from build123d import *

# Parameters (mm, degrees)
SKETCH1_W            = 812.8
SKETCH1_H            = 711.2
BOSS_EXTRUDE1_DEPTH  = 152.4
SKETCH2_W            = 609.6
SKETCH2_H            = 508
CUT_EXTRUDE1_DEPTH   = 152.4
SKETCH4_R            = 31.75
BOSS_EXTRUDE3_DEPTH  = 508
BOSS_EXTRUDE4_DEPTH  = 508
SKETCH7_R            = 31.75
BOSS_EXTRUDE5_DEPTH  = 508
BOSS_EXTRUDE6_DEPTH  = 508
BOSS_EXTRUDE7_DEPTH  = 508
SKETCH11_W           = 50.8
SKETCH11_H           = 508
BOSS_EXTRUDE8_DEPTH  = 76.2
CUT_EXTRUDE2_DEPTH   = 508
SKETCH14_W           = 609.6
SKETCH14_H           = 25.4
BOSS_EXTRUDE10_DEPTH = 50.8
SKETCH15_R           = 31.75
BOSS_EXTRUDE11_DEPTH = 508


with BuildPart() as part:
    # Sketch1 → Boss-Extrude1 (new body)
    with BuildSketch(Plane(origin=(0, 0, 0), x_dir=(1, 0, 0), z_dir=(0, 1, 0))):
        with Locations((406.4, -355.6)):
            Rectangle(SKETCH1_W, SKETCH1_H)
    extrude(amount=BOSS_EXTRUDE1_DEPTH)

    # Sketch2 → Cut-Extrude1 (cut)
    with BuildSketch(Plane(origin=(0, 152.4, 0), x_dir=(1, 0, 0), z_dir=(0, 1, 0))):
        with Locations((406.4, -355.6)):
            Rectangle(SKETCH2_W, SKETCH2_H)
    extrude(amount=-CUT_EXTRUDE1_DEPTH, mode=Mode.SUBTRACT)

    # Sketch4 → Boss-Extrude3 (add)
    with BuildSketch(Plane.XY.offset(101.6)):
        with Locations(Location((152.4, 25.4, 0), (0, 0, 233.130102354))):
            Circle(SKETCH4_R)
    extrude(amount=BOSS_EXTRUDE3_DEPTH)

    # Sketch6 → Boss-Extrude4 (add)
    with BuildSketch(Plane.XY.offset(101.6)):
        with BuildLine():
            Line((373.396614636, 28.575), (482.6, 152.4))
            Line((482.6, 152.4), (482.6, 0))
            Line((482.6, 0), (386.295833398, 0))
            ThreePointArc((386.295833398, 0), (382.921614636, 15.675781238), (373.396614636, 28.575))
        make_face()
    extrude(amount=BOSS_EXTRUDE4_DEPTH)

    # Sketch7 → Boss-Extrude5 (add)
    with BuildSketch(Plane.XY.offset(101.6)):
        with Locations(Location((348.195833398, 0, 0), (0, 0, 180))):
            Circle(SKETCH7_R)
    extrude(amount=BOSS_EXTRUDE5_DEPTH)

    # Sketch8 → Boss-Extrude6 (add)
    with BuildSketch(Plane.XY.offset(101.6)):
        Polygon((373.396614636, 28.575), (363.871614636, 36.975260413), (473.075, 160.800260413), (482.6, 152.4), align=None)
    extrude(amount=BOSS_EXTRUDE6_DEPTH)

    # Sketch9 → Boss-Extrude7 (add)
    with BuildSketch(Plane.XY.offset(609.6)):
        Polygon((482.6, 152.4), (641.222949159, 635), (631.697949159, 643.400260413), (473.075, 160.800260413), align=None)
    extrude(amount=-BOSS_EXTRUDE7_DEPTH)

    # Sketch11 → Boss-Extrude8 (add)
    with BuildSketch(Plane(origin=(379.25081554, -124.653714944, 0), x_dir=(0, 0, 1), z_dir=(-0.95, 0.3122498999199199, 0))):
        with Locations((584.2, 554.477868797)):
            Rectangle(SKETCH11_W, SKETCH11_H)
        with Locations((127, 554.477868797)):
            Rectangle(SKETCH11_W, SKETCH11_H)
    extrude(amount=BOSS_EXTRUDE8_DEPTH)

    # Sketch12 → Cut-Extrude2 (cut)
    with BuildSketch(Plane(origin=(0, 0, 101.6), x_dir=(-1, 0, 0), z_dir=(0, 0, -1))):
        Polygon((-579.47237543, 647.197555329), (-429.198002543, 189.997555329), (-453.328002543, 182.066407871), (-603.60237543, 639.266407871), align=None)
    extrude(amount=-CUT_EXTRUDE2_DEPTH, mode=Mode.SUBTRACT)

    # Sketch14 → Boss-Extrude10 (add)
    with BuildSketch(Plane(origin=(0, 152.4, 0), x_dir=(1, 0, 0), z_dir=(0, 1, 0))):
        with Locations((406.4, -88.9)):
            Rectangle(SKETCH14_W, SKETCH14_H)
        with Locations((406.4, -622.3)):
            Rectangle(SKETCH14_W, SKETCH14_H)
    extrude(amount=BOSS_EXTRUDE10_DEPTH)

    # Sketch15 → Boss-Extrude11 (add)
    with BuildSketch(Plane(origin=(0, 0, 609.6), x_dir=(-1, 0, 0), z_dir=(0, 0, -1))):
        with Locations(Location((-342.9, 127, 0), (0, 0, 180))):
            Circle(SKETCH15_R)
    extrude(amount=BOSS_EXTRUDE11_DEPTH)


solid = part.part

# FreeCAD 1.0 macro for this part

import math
import FreeCAD as App
import Part
import Sketcher

V = App.Vector
Q = App.Units.Quantity

doc = App.newDocument("Part")
params = doc.addObject("Spreadsheet::Sheet", "Params")
for row, (alias, value) in enumerate([
    ("sketch1_width", "32 in"),
    ("sketch1_height", "28 in"),
    ("pad1_length", "6 in"),
    ("sketch2_width", "24 in"),
    ("sketch2_height", "20 in"),
    ("pocket1_length", "6 in"),
    ("sketch3_diameter", "2.5 in"),
    ("pad2_length", "20 in"),
    ("sketch4_radius", "1.5 in"),
    ("sketch4_height", "6 in"),
    ("sketch4_length", "6.5 in"),
    ("pad3_length", "20 in"),
    ("sketch5_diameter", "2.5 in"),
    ("pad4_length", "20 in"),
    ("sketch6_length", "0.5 in"),
    ("sketch6_length2", "6.5 in"),
    ("pad5_length", "20 in"),
    ("sketch7_length", "20 in"),
    ("sketch7_length2", "0.5 in"),
    ("pad6_length", "20 in"),
    ("sketch8_width", "2 in"),
    ("sketch8_height", "20 in"),
    ("pad7_length", "3 in"),
    ("sketch9_length", "1 in"),
    ("pocket2_length", "20 in"),
    ("sketch10_width", "24 in"),
    ("sketch10_height", "1 in"),
    ("pad8_length", "2 in"),
    ("sketch11_diameter", "2.5 in"),
    ("pad9_length", "20 in"),
], start=1):
    params.set(f"A{row}", alias)
    params.set(f"B{row}", "=" + value)
    params.setAlias(f"B{row}", alias)

body = doc.addObject("PartDesign::Body", "Body")

# Sketch on XZ plane
sketch1 = body.newObject("Sketcher::SketchObject", "Sketch")
sketch1.AttachmentSupport = (doc.getObject("XZ_Plane"), [""])
sketch1.MapMode = "FlatFace"
sketch1.addGeometry(Part.LineSegment(V(0, 0, 0), V(0, 711, 0)), False)
sketch1.addGeometry(Part.LineSegment(V(0, 711, 0), V(813, 711, 0)), False)
sketch1.addGeometry(Part.LineSegment(V(813, 711, 0), V(813, 0, 0)), False)
sketch1.addGeometry(Part.LineSegment(V(813, 0, 0), V(0, 0, 0)), False)
sketch1.addConstraint(Sketcher.Constraint("Coincident", 0, 2, 1, 1))
sketch1.addConstraint(Sketcher.Constraint("Coincident", 1, 2, 2, 1))
sketch1.addConstraint(Sketcher.Constraint("Coincident", 2, 2, 3, 1))
sketch1.addConstraint(Sketcher.Constraint("Coincident", 3, 2, 0, 1))
sketch1.addConstraint(Sketcher.Constraint("Vertical", 0))
sketch1.addConstraint(Sketcher.Constraint("Horizontal", 1))
sketch1.addConstraint(Sketcher.Constraint("Vertical", 2))
sketch1.addConstraint(Sketcher.Constraint("Horizontal", 3))
sketch1.addConstraint(Sketcher.Constraint("Coincident", 3, 2, -1, 1))
sketch1.addConstraint(Sketcher.Constraint("DistanceX", 1, 1, 1, 2, Q("32 in")))
sketch1.addConstraint(Sketcher.Constraint("DistanceY", 0, 1, 0, 2, Q("28 in")))
sketch1.setExpression("Constraints[9]", "Params.sketch1_width")
sketch1.setExpression("Constraints[10]", "Params.sketch1_height")
pad1 = body.newObject("PartDesign::Pad", "Pad")
pad1.Profile = sketch1
pad1.setExpression("Length", "Params.pad1_length")
pad1.Reversed = True

# Sketch on XZ plane
sketch2 = body.newObject("Sketcher::SketchObject", "Sketch001")
sketch2.AttachmentSupport = (doc.getObject("XZ_Plane"), [""])
sketch2.MapMode = "FlatFace"
sketch2.AttachmentOffset = App.Placement(V(0, 0, -6 * 25.4), App.Rotation())
sketch2.addGeometry(Part.LineSegment(V(102, 102, 0), V(102, 610, 0)), False)
sketch2.addGeometry(Part.LineSegment(V(102, 610, 0), V(711, 610, 0)), False)
sketch2.addGeometry(Part.LineSegment(V(711, 610, 0), V(711, 102, 0)), False)
sketch2.addGeometry(Part.LineSegment(V(711, 102, 0), V(102, 102, 0)), False)
sketch2.addConstraint(Sketcher.Constraint("Coincident", 0, 2, 1, 1))
sketch2.addConstraint(Sketcher.Constraint("Coincident", 1, 2, 2, 1))
sketch2.addConstraint(Sketcher.Constraint("Coincident", 2, 2, 3, 1))
sketch2.addConstraint(Sketcher.Constraint("Coincident", 3, 2, 0, 1))
sketch2.addConstraint(Sketcher.Constraint("Vertical", 0))
sketch2.addConstraint(Sketcher.Constraint("Horizontal", 1))
sketch2.addConstraint(Sketcher.Constraint("Vertical", 2))
sketch2.addConstraint(Sketcher.Constraint("Horizontal", 3))
sketch2.addConstraint(Sketcher.Constraint("DistanceX", 1, 1, 1, 2, Q("24 in")))
sketch2.addConstraint(Sketcher.Constraint("DistanceY", 0, 1, 0, 2, Q("20 in")))
sketch2.addConstraint(Sketcher.Constraint("DistanceX", -1, 1, 0, 2, Q("4 in")))
sketch2.addConstraint(Sketcher.Constraint("DistanceY", -1, 1, 0, 2, Q("24 in")))
sketch2.setExpression("Constraints[8]", "Params.sketch2_width")
sketch2.setExpression("Constraints[9]", "Params.sketch2_height")
pocket1 = body.newObject("PartDesign::Pocket", "Pocket")
pocket1.Profile = sketch2
pocket1.setExpression("Length", "Params.pocket1_length")
pocket1.Reversed = True

# Sketch on XY plane
sketch3 = body.newObject("Sketcher::SketchObject", "Sketch002")
sketch3.AttachmentSupport = (doc.getObject("XY_Plane"), [""])
sketch3.MapMode = "FlatFace"
sketch3.AttachmentOffset = App.Placement(V(0, 0, 4 * 25.4), App.Rotation())
sketch3.addGeometry(Part.Circle(V(152, 25, 0), V(0, 0, 1), 32), False)
sketch3.addConstraint(Sketcher.Constraint("Diameter", 0, Q("2.5 in")))
sketch3.addConstraint(Sketcher.Constraint("DistanceX", -1, 1, 0, 3, Q("6 in")))
sketch3.addConstraint(Sketcher.Constraint("DistanceY", -1, 1, 0, 3, Q("1 in")))
sketch3.setExpression("Constraints[0]", "Params.sketch3_diameter")
pad2 = body.newObject("PartDesign::Pad", "Pad001")
pad2.Profile = sketch3
pad2.setExpression("Length", "Params.pad2_length")

# Sketch on XY plane
sketch4 = body.newObject("Sketcher::SketchObject", "Sketch003")
sketch4.AttachmentSupport = (doc.getObject("XY_Plane"), [""])
sketch4.MapMode = "FlatFace"
sketch4.AttachmentOffset = App.Placement(V(0, 0, 4 * 25.4), App.Rotation())
sketch4.addGeometry(Part.LineSegment(V(483, 152, 0), V(373, 29, 0)), False)
sketch4.addGeometry(Part.ArcOfCircle(Part.Circle(V(348, 0, 0), V(0, 0, 1), 38), math.radians(0), math.radians(49)), False)
sketch4.addGeometry(Part.LineSegment(V(386, 0, 0), V(483, 0, 0)), False)
sketch4.addGeometry(Part.LineSegment(V(483, 0, 0), V(483, 152, 0)), False)
sketch4.addConstraint(Sketcher.Constraint("Coincident", 0, 2, 1, 2))
sketch4.addConstraint(Sketcher.Constraint("Coincident", 1, 1, 2, 1))
sketch4.addConstraint(Sketcher.Constraint("Coincident", 2, 2, 3, 1))
sketch4.addConstraint(Sketcher.Constraint("Coincident", 3, 2, 0, 1))
sketch4.addConstraint(Sketcher.Constraint("Horizontal", 2))
sketch4.addConstraint(Sketcher.Constraint("Vertical", 3))
sketch4.addConstraint(Sketcher.Constraint("PointOnObject", 1, 3, -1))
sketch4.addConstraint(Sketcher.Constraint("PointOnObject", 1, 1, -1))
sketch4.addConstraint(Sketcher.Constraint("Radius", 1, Q("1.5 in")))
sketch4.addConstraint(Sketcher.Constraint("DistanceY", 3, 1, 3, 2, Q("6 in")))
sketch4.addConstraint(Sketcher.Constraint("DistanceX", -1, 1, 2, 2, Q("19 in")))
sketch4.addConstraint(Sketcher.Constraint("Distance", 0, Q("6.5 in")))
sketch4.addConstraint(Sketcher.Constraint("DistanceY", -1, 1, 0, 2, Q("1.125 in")))
sketch4.setExpression("Constraints[8]", "Params.sketch4_radius")
sketch4.setExpression("Constraints[9]", "Params.sketch4_height")
sketch4.setExpression("Constraints[11]", "Params.sketch4_length")
pad3 = body.newObject("PartDesign::Pad", "Pad002")
pad3.Profile = sketch4
pad3.setExpression("Length", "Params.pad3_length")

# Sketch on XY plane
sketch5 = body.newObject("Sketcher::SketchObject", "Sketch004")
sketch5.AttachmentSupport = (doc.getObject("XY_Plane"), [""])
sketch5.MapMode = "FlatFace"
sketch5.AttachmentOffset = App.Placement(V(0, 0, 4 * 25.4), App.Rotation())
sketch5.addGeometry(Part.Circle(V(348, 0, 0), V(0, 0, 1), 32), False)
sketch5.addConstraint(Sketcher.Constraint("PointOnObject", 0, 3, -1))
sketch5.addConstraint(Sketcher.Constraint("Diameter", 0, Q("2.5 in")))
sketch5.addConstraint(Sketcher.Constraint("DistanceX", -1, 1, 0, 3, 348.195833))
sketch5.setExpression("Constraints[1]", "Params.sketch5_diameter")
pad4 = body.newObject("PartDesign::Pad", "Pad003")
pad4.Profile = sketch5
pad4.setExpression("Length", "Params.pad4_length")

# Sketch on XY plane
sketch6 = body.newObject("Sketcher::SketchObject", "Sketch005")
sketch6.AttachmentSupport = (doc.getObject("XY_Plane"), [""])
sketch6.MapMode = "FlatFace"
sketch6.AttachmentOffset = App.Placement(V(0, 0, 4 * 25.4), App.Rotation())
sketch6.addGeometry(Part.LineSegment(V(364, 37, 0), V(373, 29, 0)), False)
sketch6.addGeometry(Part.LineSegment(V(373, 29, 0), V(483, 152, 0)), False)
sketch6.addGeometry(Part.LineSegment(V(483, 152, 0), V(473, 161, 0)), False)
sketch6.addGeometry(Part.LineSegment(V(473, 161, 0), V(364, 37, 0)), False)
sketch6.addConstraint(Sketcher.Constraint("Coincident", 0, 2, 1, 1))
sketch6.addConstraint(Sketcher.Constraint("Coincident", 1, 2, 2, 1))
sketch6.addConstraint(Sketcher.Constraint("Coincident", 2, 2, 3, 1))
sketch6.addConstraint(Sketcher.Constraint("Coincident", 3, 2, 0, 1))
sketch6.addConstraint(Sketcher.Constraint("Perpendicular", 0, 1))
sketch6.addConstraint(Sketcher.Constraint("Perpendicular", 1, 2))
sketch6.addConstraint(Sketcher.Constraint("Perpendicular", 2, 3))
sketch6.addConstraint(Sketcher.Constraint("DistanceX", -1, 1, 1, 2, Q("19 in")))
sketch6.addConstraint(Sketcher.Constraint("DistanceY", -1, 1, 1, 2, Q("6 in")))
sketch6.addConstraint(Sketcher.Constraint("Distance", 0, Q("0.5 in")))
sketch6.addConstraint(Sketcher.Constraint("Distance", 1, Q("6.5 in")))
sketch6.addConstraint(Sketcher.Constraint("DistanceY", -1, 1, 0, 2, Q("1.125 in")))
sketch6.setExpression("Constraints[9]", "Params.sketch6_length")
sketch6.setExpression("Constraints[10]", "Params.sketch6_length2")
pad5 = body.newObject("PartDesign::Pad", "Pad004")
pad5.Profile = sketch6
pad5.setExpression("Length", "Params.pad5_length")

# Sketch on XY plane
sketch7 = body.newObject("Sketcher::SketchObject", "Sketch006")
sketch7.AttachmentSupport = (doc.getObject("XY_Plane"), [""])
sketch7.MapMode = "FlatFace"
sketch7.AttachmentOffset = App.Placement(V(0, 0, 24 * 25.4), App.Rotation())
sketch7.addGeometry(Part.LineSegment(V(483, 152, 0), V(641, 635, 0)), False)
sketch7.addGeometry(Part.LineSegment(V(641, 635, 0), V(632, 643, 0)), False)
sketch7.addGeometry(Part.LineSegment(V(632, 643, 0), V(473, 161, 0)), False)
sketch7.addGeometry(Part.LineSegment(V(473, 161, 0), V(483, 152, 0)), False)
sketch7.addConstraint(Sketcher.Constraint("Coincident", 0, 2, 1, 1))
sketch7.addConstraint(Sketcher.Constraint("Coincident", 1, 2, 2, 1))
sketch7.addConstraint(Sketcher.Constraint("Coincident", 2, 2, 3, 1))
sketch7.addConstraint(Sketcher.Constraint("Coincident", 3, 2, 0, 1))
sketch7.addConstraint(Sketcher.Constraint("Parallel", 0, 2))
sketch7.addConstraint(Sketcher.Constraint("Parallel", 1, 3))
sketch7.addConstraint(Sketcher.Constraint("Distance", 0, Q("20 in")))
sketch7.addConstraint(Sketcher.Constraint("DistanceY", -1, 1, 0, 2, Q("25 in")))
sketch7.addConstraint(Sketcher.Constraint("DistanceX", -1, 1, 3, 2, Q("19 in")))
sketch7.addConstraint(Sketcher.Constraint("DistanceY", -1, 1, 3, 2, Q("6 in")))
sketch7.addConstraint(Sketcher.Constraint("Distance", 1, Q("0.5 in")))
sketch7.addConstraint(Sketcher.Constraint("DistanceX", -1, 1, 2, 2, Q("18.625 in")))
sketch7.setExpression("Constraints[6]", "Params.sketch7_length")
sketch7.setExpression("Constraints[10]", "Params.sketch7_length2")
pad6 = body.newObject("PartDesign::Pad", "Pad005")
pad6.Profile = sketch7
pad6.setExpression("Length", "Params.pad6_length")
pad6.Reversed = True

# Sketch on an angled plane
sketch8 = body.newObject("Sketcher::SketchObject", "Sketch007")
sketch8.Placement = App.Placement(V(379.250816, -124.653715, 0), App.Rotation(V(0, 0, 1), V(0.3122499, 0.95, 0), V(-0.95, 0.3122499, 0), "ZXY"))
sketch8.addGeometry(Part.LineSegment(V(559, 808, 0), V(559, 300, 0)), False)
sketch8.addGeometry(Part.LineSegment(V(559, 300, 0), V(610, 300, 0)), False)
sketch8.addGeometry(Part.LineSegment(V(610, 300, 0), V(610, 808, 0)), False)
sketch8.addGeometry(Part.LineSegment(V(610, 808, 0), V(559, 808, 0)), False)
sketch8.addGeometry(Part.LineSegment(V(102, 808, 0), V(102, 300, 0)), False)
sketch8.addGeometry(Part.LineSegment(V(102, 300, 0), V(152, 300, 0)), False)
sketch8.addGeometry(Part.LineSegment(V(152, 300, 0), V(152, 808, 0)), False)
sketch8.addGeometry(Part.LineSegment(V(152, 808, 0), V(102, 808, 0)), False)
sketch8.addConstraint(Sketcher.Constraint("Coincident", 0, 2, 1, 1))
sketch8.addConstraint(Sketcher.Constraint("Coincident", 1, 2, 2, 1))
sketch8.addConstraint(Sketcher.Constraint("Coincident", 2, 2, 3, 1))
sketch8.addConstraint(Sketcher.Constraint("Coincident", 3, 2, 0, 1))
sketch8.addConstraint(Sketcher.Constraint("Coincident", 4, 2, 5, 1))
sketch8.addConstraint(Sketcher.Constraint("Coincident", 5, 2, 6, 1))
sketch8.addConstraint(Sketcher.Constraint("Coincident", 6, 2, 7, 1))
sketch8.addConstraint(Sketcher.Constraint("Coincident", 7, 2, 4, 1))
sketch8.addConstraint(Sketcher.Constraint("Vertical", 0))
sketch8.addConstraint(Sketcher.Constraint("Horizontal", 1))
sketch8.addConstraint(Sketcher.Constraint("Vertical", 2))
sketch8.addConstraint(Sketcher.Constraint("Horizontal", 3))
sketch8.addConstraint(Sketcher.Constraint("Vertical", 4))
sketch8.addConstraint(Sketcher.Constraint("Horizontal", 5))
sketch8.addConstraint(Sketcher.Constraint("Vertical", 6))
sketch8.addConstraint(Sketcher.Constraint("Horizontal", 7))
sketch8.addConstraint(Sketcher.Constraint("Horizontal", 1, 2, 4, 2))
sketch8.addConstraint(Sketcher.Constraint("Horizontal", 3, 2, 6, 2))
sketch8.addConstraint(Sketcher.Constraint("Equal", 3, 5))
sketch8.addConstraint(Sketcher.Constraint("DistanceX", 1, 1, 1, 2, Q("2 in")))
sketch8.addConstraint(Sketcher.Constraint("DistanceY", 0, 2, 0, 1, Q("20 in")))
sketch8.addConstraint(Sketcher.Constraint("DistanceX", -1, 1, 0, 2, Q("22 in")))
sketch8.addConstraint(Sketcher.Constraint("DistanceX", -1, 1, 4, 2, Q("4 in")))
sketch8.addConstraint(Sketcher.Constraint("DistanceY", -1, 1, 0, 2, 300.477869))
sketch8.setExpression("Constraints[19]", "Params.sketch8_width")
sketch8.setExpression("Constraints[20]", "Params.sketch8_height")
pad7 = body.newObject("PartDesign::Pad", "Pad006")
pad7.Profile = sketch8
pad7.setExpression("Length", "Params.pad7_length")

# Sketch on XY plane
sketch9 = body.newObject("Sketcher::SketchObject", "Sketch008")
sketch9.AttachmentSupport = (doc.getObject("XY_Plane"), [""])
sketch9.MapMode = "FlatFace"
sketch9.AttachmentOffset = App.Placement(V(0, 0, 4 * 25.4), App.Rotation())
sketch9.addGeometry(Part.LineSegment(V(429, 190, 0), V(579, 647, 0)), False)
sketch9.addGeometry(Part.LineSegment(V(579, 647, 0), V(604, 639, 0)), False)
sketch9.addGeometry(Part.LineSegment(V(604, 639, 0), V(453, 182, 0)), False)
sketch9.addGeometry(Part.LineSegment(V(453, 182, 0), V(429, 190, 0)), False)
sketch9.addConstraint(Sketcher.Constraint("Coincident", 0, 2, 1, 1))
sketch9.addConstraint(Sketcher.Constraint("Coincident", 1, 2, 2, 1))
sketch9.addConstraint(Sketcher.Constraint("Coincident", 2, 2, 3, 1))
sketch9.addConstraint(Sketcher.Constraint("Coincident", 3, 2, 0, 1))
sketch9.addConstraint(Sketcher.Constraint("Perpendicular", 0, 1))
sketch9.addConstraint(Sketcher.Constraint("Perpendicular", 1, 2))
sketch9.addConstraint(Sketcher.Constraint("Perpendicular", 2, 3))
sketch9.addConstraint(Sketcher.Constraint("Distance", 1, Q("1 in")))
sketch9.addConstraint(Sketcher.Constraint("DistanceY", 2, 2, 1, 2, Q("18 in")))
sketch9.addConstraint(Sketcher.Constraint("DistanceX", 0, 2, 1, 2, Q("0.95 in")))
sketch9.addConstraint(Sketcher.Constraint("DistanceX", -1, 1, 0, 2, 579.472375))
sketch9.addConstraint(Sketcher.Constraint("DistanceY", -1, 1, 0, 2, 647.197555))
sketch9.setExpression("Constraints[7]", "Params.sketch9_length")
pocket2 = body.newObject("PartDesign::Pocket", "Pocket001")
pocket2.Profile = sketch9
pocket2.setExpression("Length", "Params.pocket2_length")
pocket2.Reversed = True

# Sketch on XZ plane
sketch10 = body.newObject("Sketcher::SketchObject", "Sketch009")
sketch10.AttachmentSupport = (doc.getObject("XZ_Plane"), [""])
sketch10.MapMode = "FlatFace"
sketch10.AttachmentOffset = App.Placement(V(0, 0, -6 * 25.4), App.Rotation())
sketch10.addGeometry(Part.LineSegment(V(102, 76, 0), V(102, 102, 0)), False)
sketch10.addGeometry(Part.LineSegment(V(102, 102, 0), V(711, 102, 0)), False)
sketch10.addGeometry(Part.LineSegment(V(711, 102, 0), V(711, 76, 0)), False)
sketch10.addGeometry(Part.LineSegment(V(711, 76, 0), V(102, 76, 0)), False)
sketch10.addGeometry(Part.LineSegment(V(102, 610, 0), V(102, 635, 0)), False)
sketch10.addGeometry(Part.LineSegment(V(102, 635, 0), V(711, 635, 0)), False)
sketch10.addGeometry(Part.LineSegment(V(711, 635, 0), V(711, 610, 0)), False)
sketch10.addGeometry(Part.LineSegment(V(711, 610, 0), V(102, 610, 0)), False)
sketch10.addConstraint(Sketcher.Constraint("Coincident", 0, 2, 1, 1))
sketch10.addConstraint(Sketcher.Constraint("Coincident", 1, 2, 2, 1))
sketch10.addConstraint(Sketcher.Constraint("Coincident", 2, 2, 3, 1))
sketch10.addConstraint(Sketcher.Constraint("Coincident", 3, 2, 0, 1))
sketch10.addConstraint(Sketcher.Constraint("Coincident", 4, 2, 5, 1))
sketch10.addConstraint(Sketcher.Constraint("Coincident", 5, 2, 6, 1))
sketch10.addConstraint(Sketcher.Constraint("Coincident", 6, 2, 7, 1))
sketch10.addConstraint(Sketcher.Constraint("Coincident", 7, 2, 4, 1))
sketch10.addConstraint(Sketcher.Constraint("Vertical", 0))
sketch10.addConstraint(Sketcher.Constraint("Horizontal", 1))
sketch10.addConstraint(Sketcher.Constraint("Vertical", 2))
sketch10.addConstraint(Sketcher.Constraint("Horizontal", 3))
sketch10.addConstraint(Sketcher.Constraint("Vertical", 4))
sketch10.addConstraint(Sketcher.Constraint("Horizontal", 5))
sketch10.addConstraint(Sketcher.Constraint("Vertical", 6))
sketch10.addConstraint(Sketcher.Constraint("Horizontal", 7))
sketch10.addConstraint(Sketcher.Constraint("Vertical", 3, 2, 4, 2))
sketch10.addConstraint(Sketcher.Constraint("Vertical", 2, 2, 5, 2))
sketch10.addConstraint(Sketcher.Constraint("Equal", 2, 4))
sketch10.addConstraint(Sketcher.Constraint("DistanceX", 1, 1, 1, 2, Q("24 in")))
sketch10.addConstraint(Sketcher.Constraint("DistanceY", 0, 1, 0, 2, Q("1 in")))
sketch10.addConstraint(Sketcher.Constraint("DistanceX", -1, 1, 0, 2, Q("4 in")))
sketch10.addConstraint(Sketcher.Constraint("DistanceY", -1, 1, 0, 2, Q("4 in")))
sketch10.addConstraint(Sketcher.Constraint("DistanceY", -1, 1, 4, 2, Q("25 in")))
sketch10.setExpression("Constraints[19]", "Params.sketch10_width")
sketch10.setExpression("Constraints[20]", "Params.sketch10_height")
pad8 = body.newObject("PartDesign::Pad", "Pad007")
pad8.Profile = sketch10
pad8.setExpression("Length", "Params.pad8_length")
pad8.Reversed = True

# Sketch on XY plane
sketch11 = body.newObject("Sketcher::SketchObject", "Sketch010")
sketch11.AttachmentSupport = (doc.getObject("XY_Plane"), [""])
sketch11.MapMode = "FlatFace"
sketch11.AttachmentOffset = App.Placement(V(0, 0, 24 * 25.4), App.Rotation())
sketch11.addGeometry(Part.Circle(V(343, 127, 0), V(0, 0, 1), 32), False)
sketch11.addConstraint(Sketcher.Constraint("Diameter", 0, Q("2.5 in")))
sketch11.addConstraint(Sketcher.Constraint("DistanceY", -1, 1, 0, 3, Q("5 in")))
sketch11.addConstraint(Sketcher.Constraint("DistanceX", -1, 1, 0, 3, Q("13.5 in")))
sketch11.setExpression("Constraints[0]", "Params.sketch11_diameter")
pad9 = body.newObject("PartDesign::Pad", "Pad008")
pad9.Profile = sketch11
pad9.setExpression("Length", "Params.pad9_length")
pad9.Reversed = True

doc.recompute()
